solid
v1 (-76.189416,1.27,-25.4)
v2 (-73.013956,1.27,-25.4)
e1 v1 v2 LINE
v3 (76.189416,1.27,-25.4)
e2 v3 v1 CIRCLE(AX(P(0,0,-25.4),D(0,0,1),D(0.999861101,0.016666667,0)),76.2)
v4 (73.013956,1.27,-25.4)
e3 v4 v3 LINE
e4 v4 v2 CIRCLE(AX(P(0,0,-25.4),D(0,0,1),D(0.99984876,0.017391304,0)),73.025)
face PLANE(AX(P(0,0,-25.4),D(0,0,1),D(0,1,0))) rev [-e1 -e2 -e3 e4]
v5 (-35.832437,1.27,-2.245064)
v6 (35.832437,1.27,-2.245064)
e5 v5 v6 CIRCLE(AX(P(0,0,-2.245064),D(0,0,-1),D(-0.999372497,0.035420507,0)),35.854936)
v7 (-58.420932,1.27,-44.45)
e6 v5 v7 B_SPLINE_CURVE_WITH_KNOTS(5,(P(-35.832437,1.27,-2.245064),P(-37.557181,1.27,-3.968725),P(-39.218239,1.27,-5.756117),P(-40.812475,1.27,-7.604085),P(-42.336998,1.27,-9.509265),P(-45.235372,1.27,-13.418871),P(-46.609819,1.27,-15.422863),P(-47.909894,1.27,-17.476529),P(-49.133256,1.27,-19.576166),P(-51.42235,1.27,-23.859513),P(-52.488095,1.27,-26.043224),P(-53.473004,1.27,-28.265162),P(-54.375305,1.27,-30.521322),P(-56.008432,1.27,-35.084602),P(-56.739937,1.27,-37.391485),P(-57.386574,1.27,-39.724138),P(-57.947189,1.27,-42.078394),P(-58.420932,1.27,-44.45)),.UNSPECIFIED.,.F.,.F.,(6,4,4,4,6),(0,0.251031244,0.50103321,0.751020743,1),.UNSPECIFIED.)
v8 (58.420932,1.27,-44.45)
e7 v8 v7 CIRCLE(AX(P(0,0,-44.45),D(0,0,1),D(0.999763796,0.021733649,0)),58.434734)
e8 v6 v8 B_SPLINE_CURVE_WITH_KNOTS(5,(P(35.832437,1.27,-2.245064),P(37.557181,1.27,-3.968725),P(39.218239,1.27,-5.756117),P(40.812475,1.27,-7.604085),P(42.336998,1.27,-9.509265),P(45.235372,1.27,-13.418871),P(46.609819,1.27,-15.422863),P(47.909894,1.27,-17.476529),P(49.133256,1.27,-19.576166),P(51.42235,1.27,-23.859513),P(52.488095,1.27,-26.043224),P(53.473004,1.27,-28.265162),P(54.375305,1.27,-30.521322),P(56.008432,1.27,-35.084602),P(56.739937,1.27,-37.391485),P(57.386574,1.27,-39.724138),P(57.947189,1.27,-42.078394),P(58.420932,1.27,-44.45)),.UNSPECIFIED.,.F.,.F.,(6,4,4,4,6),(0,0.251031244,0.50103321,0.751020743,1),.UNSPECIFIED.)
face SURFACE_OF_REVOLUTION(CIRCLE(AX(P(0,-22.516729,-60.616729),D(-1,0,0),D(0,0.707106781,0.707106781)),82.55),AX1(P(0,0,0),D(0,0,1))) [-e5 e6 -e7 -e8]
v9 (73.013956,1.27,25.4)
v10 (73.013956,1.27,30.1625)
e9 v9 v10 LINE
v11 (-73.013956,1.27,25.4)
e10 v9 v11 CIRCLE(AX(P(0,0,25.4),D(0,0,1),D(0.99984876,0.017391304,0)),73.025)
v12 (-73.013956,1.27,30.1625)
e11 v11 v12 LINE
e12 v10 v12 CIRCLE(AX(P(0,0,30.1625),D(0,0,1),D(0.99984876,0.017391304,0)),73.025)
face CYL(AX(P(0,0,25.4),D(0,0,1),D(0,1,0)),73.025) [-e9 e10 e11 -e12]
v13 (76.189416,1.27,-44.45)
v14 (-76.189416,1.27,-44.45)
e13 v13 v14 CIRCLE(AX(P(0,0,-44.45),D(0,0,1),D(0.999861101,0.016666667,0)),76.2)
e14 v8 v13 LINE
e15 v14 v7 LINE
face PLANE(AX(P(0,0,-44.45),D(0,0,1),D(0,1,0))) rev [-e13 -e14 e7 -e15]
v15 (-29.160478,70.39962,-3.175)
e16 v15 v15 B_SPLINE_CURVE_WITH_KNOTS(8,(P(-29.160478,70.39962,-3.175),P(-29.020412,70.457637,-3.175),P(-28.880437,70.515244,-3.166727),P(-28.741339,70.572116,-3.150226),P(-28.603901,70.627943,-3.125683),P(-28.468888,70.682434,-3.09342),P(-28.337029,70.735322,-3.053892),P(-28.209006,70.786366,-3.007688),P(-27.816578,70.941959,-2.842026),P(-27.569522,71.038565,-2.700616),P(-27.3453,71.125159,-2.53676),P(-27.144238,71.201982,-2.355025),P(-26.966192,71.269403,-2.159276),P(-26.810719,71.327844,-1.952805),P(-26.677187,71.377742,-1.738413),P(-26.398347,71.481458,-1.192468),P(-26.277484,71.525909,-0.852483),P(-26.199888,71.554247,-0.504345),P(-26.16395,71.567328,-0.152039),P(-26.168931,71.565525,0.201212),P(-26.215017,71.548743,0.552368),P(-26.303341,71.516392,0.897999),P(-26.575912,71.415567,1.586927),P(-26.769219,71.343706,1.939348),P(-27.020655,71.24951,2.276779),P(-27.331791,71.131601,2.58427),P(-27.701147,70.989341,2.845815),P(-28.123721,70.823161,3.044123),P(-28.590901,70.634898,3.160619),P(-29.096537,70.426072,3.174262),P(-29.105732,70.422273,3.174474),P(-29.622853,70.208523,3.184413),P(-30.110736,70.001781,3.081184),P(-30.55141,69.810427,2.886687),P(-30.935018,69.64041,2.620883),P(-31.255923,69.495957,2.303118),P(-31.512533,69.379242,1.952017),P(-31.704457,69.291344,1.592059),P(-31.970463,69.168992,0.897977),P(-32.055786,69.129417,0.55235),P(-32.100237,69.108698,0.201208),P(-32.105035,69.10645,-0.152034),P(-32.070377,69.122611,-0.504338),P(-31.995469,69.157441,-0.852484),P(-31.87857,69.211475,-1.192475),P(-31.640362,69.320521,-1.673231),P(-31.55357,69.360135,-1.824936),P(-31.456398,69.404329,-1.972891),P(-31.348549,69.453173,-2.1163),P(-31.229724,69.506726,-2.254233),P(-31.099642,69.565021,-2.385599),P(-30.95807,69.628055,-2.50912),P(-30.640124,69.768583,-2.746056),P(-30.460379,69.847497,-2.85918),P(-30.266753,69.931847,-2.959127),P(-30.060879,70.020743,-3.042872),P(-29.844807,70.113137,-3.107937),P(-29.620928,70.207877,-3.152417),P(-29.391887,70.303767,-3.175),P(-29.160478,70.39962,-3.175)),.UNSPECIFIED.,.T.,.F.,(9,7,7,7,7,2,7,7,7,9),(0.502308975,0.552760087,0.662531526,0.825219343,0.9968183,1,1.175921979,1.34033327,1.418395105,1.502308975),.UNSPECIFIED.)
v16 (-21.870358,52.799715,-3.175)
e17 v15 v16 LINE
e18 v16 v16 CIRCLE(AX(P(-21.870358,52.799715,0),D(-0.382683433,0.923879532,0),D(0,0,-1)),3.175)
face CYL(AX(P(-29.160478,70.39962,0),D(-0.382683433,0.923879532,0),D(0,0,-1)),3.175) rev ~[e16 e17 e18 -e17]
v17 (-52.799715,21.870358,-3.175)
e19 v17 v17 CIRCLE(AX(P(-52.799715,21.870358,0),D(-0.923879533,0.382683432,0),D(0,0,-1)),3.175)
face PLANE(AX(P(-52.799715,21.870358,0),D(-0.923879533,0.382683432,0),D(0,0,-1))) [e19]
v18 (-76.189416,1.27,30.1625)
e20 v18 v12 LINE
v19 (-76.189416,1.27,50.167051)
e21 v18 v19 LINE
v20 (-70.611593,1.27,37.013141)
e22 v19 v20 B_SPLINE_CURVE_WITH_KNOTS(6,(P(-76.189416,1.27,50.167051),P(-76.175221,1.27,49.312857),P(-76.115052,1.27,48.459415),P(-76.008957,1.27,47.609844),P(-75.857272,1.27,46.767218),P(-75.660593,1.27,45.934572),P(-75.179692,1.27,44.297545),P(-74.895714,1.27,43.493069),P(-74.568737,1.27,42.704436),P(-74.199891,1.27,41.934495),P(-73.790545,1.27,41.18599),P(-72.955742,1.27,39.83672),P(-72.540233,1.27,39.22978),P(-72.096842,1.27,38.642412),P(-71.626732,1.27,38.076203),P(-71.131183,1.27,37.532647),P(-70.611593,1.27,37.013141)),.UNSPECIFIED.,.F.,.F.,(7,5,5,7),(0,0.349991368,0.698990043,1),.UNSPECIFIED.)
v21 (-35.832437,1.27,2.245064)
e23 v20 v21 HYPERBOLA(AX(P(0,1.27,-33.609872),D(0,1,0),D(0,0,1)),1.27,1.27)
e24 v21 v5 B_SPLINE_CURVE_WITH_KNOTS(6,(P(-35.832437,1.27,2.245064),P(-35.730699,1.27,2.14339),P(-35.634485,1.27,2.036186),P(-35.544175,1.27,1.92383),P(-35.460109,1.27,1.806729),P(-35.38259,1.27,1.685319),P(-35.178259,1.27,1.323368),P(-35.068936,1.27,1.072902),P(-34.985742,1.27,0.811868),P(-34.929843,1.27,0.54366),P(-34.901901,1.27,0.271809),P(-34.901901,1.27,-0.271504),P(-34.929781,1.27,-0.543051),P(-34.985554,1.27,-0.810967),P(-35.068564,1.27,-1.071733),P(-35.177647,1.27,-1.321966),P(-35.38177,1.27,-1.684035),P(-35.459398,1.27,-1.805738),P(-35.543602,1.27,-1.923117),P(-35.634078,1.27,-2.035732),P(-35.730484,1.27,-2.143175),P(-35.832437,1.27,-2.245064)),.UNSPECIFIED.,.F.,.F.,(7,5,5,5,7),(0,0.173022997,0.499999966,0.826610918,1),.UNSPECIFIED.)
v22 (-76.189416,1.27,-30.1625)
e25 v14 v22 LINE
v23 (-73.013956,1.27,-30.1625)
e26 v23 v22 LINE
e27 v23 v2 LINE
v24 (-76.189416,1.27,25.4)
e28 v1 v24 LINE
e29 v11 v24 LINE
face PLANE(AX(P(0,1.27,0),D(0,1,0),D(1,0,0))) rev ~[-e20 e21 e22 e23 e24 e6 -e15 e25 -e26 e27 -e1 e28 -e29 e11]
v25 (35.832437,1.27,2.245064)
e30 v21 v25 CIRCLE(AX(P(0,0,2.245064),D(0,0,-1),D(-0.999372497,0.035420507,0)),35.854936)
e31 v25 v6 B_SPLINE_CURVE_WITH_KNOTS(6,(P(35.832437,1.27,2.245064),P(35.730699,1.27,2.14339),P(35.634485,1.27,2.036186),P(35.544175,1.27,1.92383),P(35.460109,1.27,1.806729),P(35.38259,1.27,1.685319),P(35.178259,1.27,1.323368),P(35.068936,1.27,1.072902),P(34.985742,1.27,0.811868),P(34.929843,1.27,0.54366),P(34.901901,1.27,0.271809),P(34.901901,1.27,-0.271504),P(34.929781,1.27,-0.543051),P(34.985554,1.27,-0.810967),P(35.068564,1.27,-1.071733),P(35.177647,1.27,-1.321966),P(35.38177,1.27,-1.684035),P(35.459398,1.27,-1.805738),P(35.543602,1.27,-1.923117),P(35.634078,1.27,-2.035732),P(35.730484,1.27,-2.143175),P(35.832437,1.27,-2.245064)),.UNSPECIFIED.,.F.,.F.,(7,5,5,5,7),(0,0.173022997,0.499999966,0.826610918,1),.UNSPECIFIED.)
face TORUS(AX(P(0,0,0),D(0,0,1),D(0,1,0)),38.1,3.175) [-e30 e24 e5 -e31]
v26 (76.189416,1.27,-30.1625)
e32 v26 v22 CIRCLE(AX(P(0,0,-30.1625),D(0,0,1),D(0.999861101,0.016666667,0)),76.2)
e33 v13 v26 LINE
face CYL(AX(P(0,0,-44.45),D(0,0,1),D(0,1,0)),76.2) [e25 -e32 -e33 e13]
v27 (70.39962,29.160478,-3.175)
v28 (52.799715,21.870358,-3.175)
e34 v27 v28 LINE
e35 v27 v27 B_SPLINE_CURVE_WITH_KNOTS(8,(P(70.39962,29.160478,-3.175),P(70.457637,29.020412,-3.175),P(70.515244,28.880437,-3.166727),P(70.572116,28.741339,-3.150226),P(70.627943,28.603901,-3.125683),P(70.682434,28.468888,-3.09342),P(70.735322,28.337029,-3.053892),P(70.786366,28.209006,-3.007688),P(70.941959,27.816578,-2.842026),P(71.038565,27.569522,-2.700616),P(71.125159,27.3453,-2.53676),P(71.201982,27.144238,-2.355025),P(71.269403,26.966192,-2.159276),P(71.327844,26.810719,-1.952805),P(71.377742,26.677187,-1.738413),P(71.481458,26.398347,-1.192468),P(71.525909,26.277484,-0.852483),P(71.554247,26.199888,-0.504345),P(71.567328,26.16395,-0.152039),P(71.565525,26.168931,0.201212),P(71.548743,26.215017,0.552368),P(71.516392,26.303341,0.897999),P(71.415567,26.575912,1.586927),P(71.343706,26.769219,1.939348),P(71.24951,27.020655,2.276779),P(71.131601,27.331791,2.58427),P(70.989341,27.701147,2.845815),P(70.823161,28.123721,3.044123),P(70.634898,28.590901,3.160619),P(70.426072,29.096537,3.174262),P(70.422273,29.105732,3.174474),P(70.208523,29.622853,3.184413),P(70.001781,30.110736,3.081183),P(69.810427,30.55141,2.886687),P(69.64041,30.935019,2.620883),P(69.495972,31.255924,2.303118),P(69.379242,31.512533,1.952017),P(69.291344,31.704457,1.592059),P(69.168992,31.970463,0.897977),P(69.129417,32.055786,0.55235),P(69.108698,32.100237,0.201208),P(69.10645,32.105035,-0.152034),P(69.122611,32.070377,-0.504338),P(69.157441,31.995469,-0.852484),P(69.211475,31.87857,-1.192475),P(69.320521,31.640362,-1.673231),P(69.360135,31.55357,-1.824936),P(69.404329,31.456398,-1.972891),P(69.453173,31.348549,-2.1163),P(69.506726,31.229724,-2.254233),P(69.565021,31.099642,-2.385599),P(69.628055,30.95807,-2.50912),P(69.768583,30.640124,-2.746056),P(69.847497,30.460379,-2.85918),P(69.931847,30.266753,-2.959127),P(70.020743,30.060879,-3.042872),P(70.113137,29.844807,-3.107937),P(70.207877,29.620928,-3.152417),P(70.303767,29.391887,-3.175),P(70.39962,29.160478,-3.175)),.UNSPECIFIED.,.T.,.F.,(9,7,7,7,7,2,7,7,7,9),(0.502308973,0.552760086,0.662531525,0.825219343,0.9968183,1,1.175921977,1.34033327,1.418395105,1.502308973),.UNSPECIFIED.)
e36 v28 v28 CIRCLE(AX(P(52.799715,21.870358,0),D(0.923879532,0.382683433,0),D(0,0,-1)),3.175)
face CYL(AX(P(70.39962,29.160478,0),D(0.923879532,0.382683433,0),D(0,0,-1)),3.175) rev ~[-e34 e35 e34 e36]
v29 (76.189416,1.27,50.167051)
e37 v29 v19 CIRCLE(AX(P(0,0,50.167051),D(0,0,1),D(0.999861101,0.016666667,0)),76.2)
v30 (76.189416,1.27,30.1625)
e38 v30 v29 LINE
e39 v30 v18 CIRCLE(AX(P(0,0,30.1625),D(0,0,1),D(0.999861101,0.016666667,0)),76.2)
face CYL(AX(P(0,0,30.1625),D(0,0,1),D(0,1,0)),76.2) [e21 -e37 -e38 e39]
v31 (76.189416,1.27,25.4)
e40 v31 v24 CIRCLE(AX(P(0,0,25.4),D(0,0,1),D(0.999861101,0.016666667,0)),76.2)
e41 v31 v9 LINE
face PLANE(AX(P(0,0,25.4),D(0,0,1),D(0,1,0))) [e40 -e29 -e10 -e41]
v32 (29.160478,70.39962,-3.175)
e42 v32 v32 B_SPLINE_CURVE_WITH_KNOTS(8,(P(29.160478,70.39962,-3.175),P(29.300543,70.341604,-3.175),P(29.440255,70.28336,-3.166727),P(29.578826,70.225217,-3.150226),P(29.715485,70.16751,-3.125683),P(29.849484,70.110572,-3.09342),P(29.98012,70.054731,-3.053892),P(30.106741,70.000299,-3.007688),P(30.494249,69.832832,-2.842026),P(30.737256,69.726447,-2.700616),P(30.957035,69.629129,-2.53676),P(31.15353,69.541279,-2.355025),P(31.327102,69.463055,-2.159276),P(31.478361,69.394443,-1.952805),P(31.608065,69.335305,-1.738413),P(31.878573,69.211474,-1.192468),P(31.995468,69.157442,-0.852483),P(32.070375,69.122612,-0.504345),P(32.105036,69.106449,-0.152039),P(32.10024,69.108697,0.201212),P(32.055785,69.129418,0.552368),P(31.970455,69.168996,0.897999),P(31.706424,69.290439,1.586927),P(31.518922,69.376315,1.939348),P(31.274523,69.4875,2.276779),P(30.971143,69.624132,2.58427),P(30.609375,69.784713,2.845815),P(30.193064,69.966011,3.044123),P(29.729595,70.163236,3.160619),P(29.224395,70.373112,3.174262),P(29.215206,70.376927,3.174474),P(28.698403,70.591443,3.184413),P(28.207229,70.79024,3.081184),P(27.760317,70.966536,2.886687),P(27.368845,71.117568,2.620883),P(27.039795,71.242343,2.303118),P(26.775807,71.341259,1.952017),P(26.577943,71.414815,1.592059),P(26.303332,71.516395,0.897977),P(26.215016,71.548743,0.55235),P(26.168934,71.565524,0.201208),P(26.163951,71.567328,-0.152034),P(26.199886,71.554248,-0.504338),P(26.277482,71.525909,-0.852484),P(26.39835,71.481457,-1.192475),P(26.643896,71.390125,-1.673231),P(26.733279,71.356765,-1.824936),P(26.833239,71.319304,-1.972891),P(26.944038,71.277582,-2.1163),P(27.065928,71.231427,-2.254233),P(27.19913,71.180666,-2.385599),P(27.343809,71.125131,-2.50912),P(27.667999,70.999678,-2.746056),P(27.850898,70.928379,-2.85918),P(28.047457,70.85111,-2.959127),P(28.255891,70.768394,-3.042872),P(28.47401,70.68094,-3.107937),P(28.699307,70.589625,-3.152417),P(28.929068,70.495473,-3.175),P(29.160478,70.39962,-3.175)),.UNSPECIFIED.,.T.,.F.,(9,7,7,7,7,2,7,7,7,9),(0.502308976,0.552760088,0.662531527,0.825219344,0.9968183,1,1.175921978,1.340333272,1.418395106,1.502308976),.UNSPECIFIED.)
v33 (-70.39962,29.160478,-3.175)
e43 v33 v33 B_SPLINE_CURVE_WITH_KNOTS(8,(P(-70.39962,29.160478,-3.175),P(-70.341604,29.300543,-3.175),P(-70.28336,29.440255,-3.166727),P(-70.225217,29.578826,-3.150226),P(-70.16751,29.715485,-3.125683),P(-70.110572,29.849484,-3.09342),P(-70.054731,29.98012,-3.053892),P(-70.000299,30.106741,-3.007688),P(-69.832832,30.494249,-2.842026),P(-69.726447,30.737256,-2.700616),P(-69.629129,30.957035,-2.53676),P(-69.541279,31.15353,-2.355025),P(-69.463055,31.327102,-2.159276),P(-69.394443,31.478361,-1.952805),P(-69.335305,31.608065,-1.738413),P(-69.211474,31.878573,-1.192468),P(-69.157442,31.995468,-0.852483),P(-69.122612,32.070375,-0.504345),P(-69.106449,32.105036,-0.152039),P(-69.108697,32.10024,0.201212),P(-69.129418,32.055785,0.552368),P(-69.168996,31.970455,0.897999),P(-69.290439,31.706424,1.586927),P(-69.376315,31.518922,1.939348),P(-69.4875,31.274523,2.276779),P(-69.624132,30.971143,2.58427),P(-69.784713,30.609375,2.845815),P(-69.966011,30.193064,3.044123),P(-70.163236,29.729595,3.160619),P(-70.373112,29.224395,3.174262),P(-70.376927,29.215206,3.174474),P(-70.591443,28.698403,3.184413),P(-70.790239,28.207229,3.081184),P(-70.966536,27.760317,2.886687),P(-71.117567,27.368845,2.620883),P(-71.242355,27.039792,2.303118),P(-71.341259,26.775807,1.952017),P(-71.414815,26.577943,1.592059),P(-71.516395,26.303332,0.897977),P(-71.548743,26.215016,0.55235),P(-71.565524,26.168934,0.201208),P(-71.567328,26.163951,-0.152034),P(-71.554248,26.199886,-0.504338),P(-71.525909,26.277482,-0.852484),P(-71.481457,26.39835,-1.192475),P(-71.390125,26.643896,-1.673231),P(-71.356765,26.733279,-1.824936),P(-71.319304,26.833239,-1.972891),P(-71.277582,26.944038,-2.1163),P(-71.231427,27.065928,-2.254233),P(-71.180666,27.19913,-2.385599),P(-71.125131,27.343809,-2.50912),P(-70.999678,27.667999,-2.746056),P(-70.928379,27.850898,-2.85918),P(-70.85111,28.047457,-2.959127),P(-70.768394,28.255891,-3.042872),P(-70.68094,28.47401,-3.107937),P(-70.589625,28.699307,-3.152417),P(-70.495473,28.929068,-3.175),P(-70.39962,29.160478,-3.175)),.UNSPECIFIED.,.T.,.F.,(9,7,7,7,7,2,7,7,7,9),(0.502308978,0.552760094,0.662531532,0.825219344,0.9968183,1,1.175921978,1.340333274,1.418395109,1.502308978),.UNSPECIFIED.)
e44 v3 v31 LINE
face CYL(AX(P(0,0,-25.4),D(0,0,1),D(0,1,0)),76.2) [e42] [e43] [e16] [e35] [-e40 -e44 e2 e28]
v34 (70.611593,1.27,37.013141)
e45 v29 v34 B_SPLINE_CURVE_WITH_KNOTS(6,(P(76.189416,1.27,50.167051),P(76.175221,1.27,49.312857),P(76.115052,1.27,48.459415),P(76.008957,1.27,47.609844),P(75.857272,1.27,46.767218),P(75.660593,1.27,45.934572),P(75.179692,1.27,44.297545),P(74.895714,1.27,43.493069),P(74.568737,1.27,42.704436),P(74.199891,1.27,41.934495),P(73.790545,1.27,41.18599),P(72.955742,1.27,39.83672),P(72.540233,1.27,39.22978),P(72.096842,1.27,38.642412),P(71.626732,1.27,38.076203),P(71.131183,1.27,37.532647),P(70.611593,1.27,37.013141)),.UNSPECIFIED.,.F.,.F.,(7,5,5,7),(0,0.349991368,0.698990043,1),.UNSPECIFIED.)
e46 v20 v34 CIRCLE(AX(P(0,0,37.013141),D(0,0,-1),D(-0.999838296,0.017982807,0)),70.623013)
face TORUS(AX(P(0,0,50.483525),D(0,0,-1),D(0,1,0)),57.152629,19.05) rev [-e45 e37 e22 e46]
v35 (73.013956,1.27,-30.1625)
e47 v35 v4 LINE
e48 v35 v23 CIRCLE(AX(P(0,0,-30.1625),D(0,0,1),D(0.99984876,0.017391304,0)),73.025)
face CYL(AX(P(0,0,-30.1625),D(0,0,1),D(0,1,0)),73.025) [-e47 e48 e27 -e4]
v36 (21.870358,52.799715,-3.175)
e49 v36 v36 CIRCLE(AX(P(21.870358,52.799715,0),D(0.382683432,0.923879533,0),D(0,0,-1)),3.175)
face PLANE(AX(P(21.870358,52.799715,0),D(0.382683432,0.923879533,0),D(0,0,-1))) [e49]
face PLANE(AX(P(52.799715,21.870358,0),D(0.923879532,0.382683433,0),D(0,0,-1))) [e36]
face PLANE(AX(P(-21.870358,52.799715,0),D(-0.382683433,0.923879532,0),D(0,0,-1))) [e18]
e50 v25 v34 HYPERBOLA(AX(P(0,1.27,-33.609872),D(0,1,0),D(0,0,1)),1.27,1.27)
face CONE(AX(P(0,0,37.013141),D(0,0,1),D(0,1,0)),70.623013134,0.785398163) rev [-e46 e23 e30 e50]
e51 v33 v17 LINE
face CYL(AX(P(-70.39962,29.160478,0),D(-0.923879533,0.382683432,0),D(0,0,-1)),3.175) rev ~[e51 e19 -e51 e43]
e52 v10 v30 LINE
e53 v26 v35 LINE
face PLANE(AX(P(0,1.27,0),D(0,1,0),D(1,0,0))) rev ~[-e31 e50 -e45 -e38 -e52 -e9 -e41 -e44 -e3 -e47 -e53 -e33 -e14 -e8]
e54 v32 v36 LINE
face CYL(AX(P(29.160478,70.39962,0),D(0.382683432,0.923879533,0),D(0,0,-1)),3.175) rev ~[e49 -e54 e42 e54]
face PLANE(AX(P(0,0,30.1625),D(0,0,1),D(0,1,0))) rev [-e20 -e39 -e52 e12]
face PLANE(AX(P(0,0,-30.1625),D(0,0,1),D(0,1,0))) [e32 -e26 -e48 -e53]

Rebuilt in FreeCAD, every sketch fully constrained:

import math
import FreeCAD as App
import Part
import Sketcher

V = App.Vector
Q = App.Units.Quantity

doc = App.newDocument("Part")
body = doc.addObject("PartDesign::Body", "Body")

sketch1 = body.newObject("Sketcher::SketchObject", "Sketch")
sketch1.AttachmentSupport = (doc.getObject("YZ_Plane"), [""])
sketch1.MapMode = "FlatFace"
sketch1.addGeometry([
    Part.ArcOfCircle(Part.Circle(V(57.2, 50.5, 0), V(0, 0, 1), 19), math.radians(-45), math.radians(-1)),
    Part.LineSegment(V(70.6, 37, 0), V(35.9, 2.2, 0)),
    Part.ArcOfCircle(Part.Circle(V(38.1, 0, 0), V(0, 0, 1), 3.2), math.radians(135), math.radians(225)),
    Part.ArcOfCircle(Part.Circle(V(-22.5, -60.6, 0), V(0, 0, 1), 82.6), math.radians(11), math.radians(45)),
    Part.LineSegment(V(58.4, -44.5, 0), V(76.2, -44.5, 0)),
    Part.LineSegment(V(76.2, -44.5, 0), V(76.2, -30.2, 0)),
    Part.LineSegment(V(76.2, -30.2, 0), V(73, -30.2, 0)),
    Part.LineSegment(V(73, -30.2, 0), V(73, -25.4, 0)),
    Part.LineSegment(V(73, -25.4, 0), V(76.2, -25.4, 0)),
    Part.LineSegment(V(76.2, -25.4, 0), V(76.2, 25.4, 0)),
    Part.LineSegment(V(76.2, 25.4, 0), V(73, 25.4, 0)),
    Part.LineSegment(V(73, 25.4, 0), V(73, 30.2, 0)),
    Part.LineSegment(V(73, 30.2, 0), V(76.2, 30.2, 0)),
    Part.LineSegment(V(76.2, 30.2, 0), V(76.2, 50.2, 0)),
], False)
sketch1.addConstraint([
    Sketcher.Constraint("Tangent", 0, 1, 1, 1),
    Sketcher.Constraint("Tangent", 1, 2, 2, 1),
    Sketcher.Constraint("Tangent", 2, 2, 3, 2),
    Sketcher.Constraint("Coincident", 3, 1, 4, 1),
    Sketcher.Constraint("Coincident", 4, 2, 5, 1),
    Sketcher.Constraint("Coincident", 5, 2, 6, 1),
    Sketcher.Constraint("Coincident", 6, 2, 7, 1),
    Sketcher.Constraint("Coincident", 7, 2, 8, 1),
    Sketcher.Constraint("Coincident", 8, 2, 9, 1),
    Sketcher.Constraint("Coincident", 9, 2, 10, 1),
    Sketcher.Constraint("Coincident", 10, 2, 11, 1),
    Sketcher.Constraint("Coincident", 11, 2, 12, 1),
    Sketcher.Constraint("Coincident", 12, 2, 13, 1),
    Sketcher.Constraint("Coincident", 13, 2, 0, 2),
    Sketcher.Constraint("Horizontal", 4),
    Sketcher.Constraint("Vertical", 5),
    Sketcher.Constraint("Horizontal", 6),
    Sketcher.Constraint("Vertical", 7),
    Sketcher.Constraint("Horizontal", 8),
    Sketcher.Constraint("Vertical", 9),
    Sketcher.Constraint("Horizontal", 10),
    Sketcher.Constraint("Vertical", 11),
    Sketcher.Constraint("Horizontal", 12),
    Sketcher.Constraint("Vertical", 13),
    Sketcher.Constraint("Symmetric", 1, 2, 2, 2, -1),
    Sketcher.Constraint("Symmetric", 7, 2, 10, 2, -1),
    Sketcher.Constraint("Symmetric", 5, 2, 12, 2, -1),
    Sketcher.Constraint("Vertical", 5, 2, 8, 2),
    Sketcher.Constraint("DistanceY", 9, 1, 9, 2, Q("2 in")),
    Sketcher.Constraint("Radius", 0, Q("0.75 in")),
    Sketcher.Constraint("Radius", 3, Q("3.25 in")),
    Sketcher.Constraint("DistanceX", -1, 1, 4, 2, Q("3 in")),
    Sketcher.Constraint("Angle", 1, Q("-135 deg")),
    Sketcher.Constraint("Radius", 2, Q("0.125 in")),
    Sketcher.Constraint("DistanceX", -1, 1, 2, 3, Q("1.5 in")),
    Sketcher.Constraint("DistanceX", 6, 2, 6, 1, Q("0.125 in")),
    Sketcher.Constraint("DistanceY", 5, 1, 5, 2, Q("0.5625 in")),
    Sketcher.Constraint("DistanceY", 7, 1, 7, 2, Q("0.1875 in")),
    Sketcher.Constraint("DistanceY", 13, 1, 13, 2, 20.004551),
])
revolution = body.newObject("PartDesign::Revolution", "Revolution")
revolution.Profile = sketch1
revolution.ReferenceAxis = (sketch1, ["V_Axis"])
revolution.Angle = 360

sketch2 = body.newObject("Sketcher::SketchObject", "Sketch001")
sketch2.AttachmentSupport = (doc.getObject("XZ_Plane"), [""])
sketch2.MapMode = "FlatFace"
sketch2.addGeometry([
    Part.LineSegment(V(-158, -143, 0), V(-158, 143, 0)),
    Part.LineSegment(V(-158, 143, 0), V(158, 143, 0)),
    Part.LineSegment(V(158, 143, 0), V(158, -143, 0)),
    Part.LineSegment(V(158, -143, 0), V(-158, -143, 0)),
], False)
sketch2.addConstraint([
    Sketcher.Constraint("Coincident", 0, 2, 1, 1),
    Sketcher.Constraint("Coincident", 1, 2, 2, 1),
    Sketcher.Constraint("Coincident", 2, 2, 3, 1),
    Sketcher.Constraint("Coincident", 3, 2, 0, 1),
    Sketcher.Constraint("Vertical", 0),
    Sketcher.Constraint("Horizontal", 1),
    Sketcher.Constraint("Vertical", 2),
    Sketcher.Constraint("Horizontal", 3),
    Sketcher.Constraint("Symmetric", 0, 2, 2, 2, -1, 1),
    Sketcher.Constraint("DistanceX", 1, 1, 1, 2, 316.892468),
    Sketcher.Constraint("DistanceY", 0, 1, 0, 2, 286.660554),
])
pocket1 = body.newObject("PartDesign::Pocket", "Pocket")
pocket1.Profile = sketch2
pocket1.Type = "TwoLengths"
pocket1.Length = Q("0.05 in")
pocket1.Length2 = 77.2

sketch3 = body.newObject("Sketcher::SketchObject", "Sketch002")
sketch3.Placement = App.Placement(V(29.160478, 70.39962, 0), App.Rotation(V(0, 0, -1), V(-0.923879533, 0.382683432, 0), V(0.382683432, 0.923879533, 0), "ZXY"))
sketch3.addGeometry(Part.Circle(V(0, 0, 0), V(0, 0, 1), 3.2), False)
sketch3.addConstraint([
    Sketcher.Constraint("Coincident", 0, 3, -1, 1),
    Sketcher.Constraint("Diameter", 0, Q("0.25 in")),
])
pocket2 = body.newObject("PartDesign::Pocket", "Pocket001")
pocket2.Profile = sketch3
pocket2.Length = Q("0.75 in")
doc.recompute()

polarpattern = body.newObject("PartDesign::PolarPattern", "PolarPattern")
polarpattern.Originals = [pocket2]
polarpattern.Axis = (doc.getObject("Z_Axis"), [""])
polarpattern.Angle = 360
polarpattern.Occurrences = 8
body.Tip = polarpattern

doc.recompute()
